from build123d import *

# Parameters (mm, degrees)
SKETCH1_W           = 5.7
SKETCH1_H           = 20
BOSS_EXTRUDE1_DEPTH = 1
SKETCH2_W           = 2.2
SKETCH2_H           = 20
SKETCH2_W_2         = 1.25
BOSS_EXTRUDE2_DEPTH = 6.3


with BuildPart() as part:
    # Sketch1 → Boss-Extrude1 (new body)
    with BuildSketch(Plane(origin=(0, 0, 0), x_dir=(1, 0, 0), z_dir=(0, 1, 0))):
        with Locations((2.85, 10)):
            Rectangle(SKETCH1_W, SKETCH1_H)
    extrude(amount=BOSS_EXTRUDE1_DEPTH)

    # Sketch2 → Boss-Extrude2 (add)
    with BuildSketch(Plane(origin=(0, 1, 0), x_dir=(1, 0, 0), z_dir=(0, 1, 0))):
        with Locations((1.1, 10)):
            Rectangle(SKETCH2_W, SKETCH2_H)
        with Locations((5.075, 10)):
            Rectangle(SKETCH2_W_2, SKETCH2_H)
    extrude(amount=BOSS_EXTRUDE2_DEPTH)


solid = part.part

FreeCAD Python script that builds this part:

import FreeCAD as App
import Part
import Sketcher
from FreeCAD import Vector
Q = App.Units.Quantity


def add_polygon(sketch, points):
    """Adds a closed chain of lines whose ends are joined by coincident constraints."""
    first, n = sketch.GeometryCount, len(points)
    for a, b in zip(points, points[1:] + points[:1]):
        sketch.addGeometry(Part.LineSegment(App.Vector(*a, 0), App.Vector(*b, 0)), False)
    for i in range(n):
        sketch.addConstraint(Sketcher.Constraint("Coincident", first + i, 2, first + (i + 1) % n, 1))

doc = App.newDocument("Part")
params = doc.addObject("Spreadsheet::Sheet", "Params")
for row, (alias, value) in enumerate([
    ("sketch1_height", "20 mm"),
    ("sketch1_width", "5.7 mm"),
    ("pad1_length", "1 mm"),
    ("sketch2_height", "20 mm"),
    ("sketch2_width", "2.2 mm"),
    ("sketch2_width2", "1.25 mm"),
    ("pad2_length", "6.3 mm"),
], start=1):
    params.set(f"A{row}", alias)
    params.set(f"B{row}", "=" + value)
    params.setAlias(f"B{row}", alias)

body = doc.addObject("PartDesign::Body", "Body")

sketch1 = doc.addObject("Sketcher::SketchObject", "Sketch")
body.addObject(sketch1)
sketch1.AttachmentSupport = (doc.XZ_Plane, [""])
sketch1.MapMode = "FlatFace"
add_polygon(sketch1, [(0, -20), (0, 0), (6, 0), (6, -20)])
sketch1.addConstraint([
    Sketcher.Constraint("Vertical", 0),
    Sketcher.Constraint("Horizontal", 1),
    Sketcher.Constraint("Vertical", 2),
    Sketcher.Constraint("Horizontal", 3),
    Sketcher.Constraint("Coincident", 0, 2, -1, 1),
    Sketcher.Constraint("DistanceY", 0, 1, 0, 2, Q("20 mm")),
    Sketcher.Constraint("DistanceX", 1, 1, 1, 2, Q("5.7 mm")),
])
sketch1.setExpression("Constraints[9]", "Params.sketch1_height")
sketch1.setExpression("Constraints[10]", "Params.sketch1_width")
pad1 = doc.addObject("PartDesign::Pad", "Pad")
body.addObject(pad1)
pad1.Profile = sketch1
pad1.setExpression("Length", "Params.pad1_length")
pad1.Reversed = True

sketch2 = doc.addObject("Sketcher::SketchObject", "Sketch001")
body.addObject(sketch2)
sketch2.AttachmentSupport = (doc.XZ_Plane, [""])
sketch2.MapMode = "FlatFace"
sketch2.AttachmentOffset = App.Placement(Vector(0, 0, -1), App.Rotation())
add_polygon(sketch2, [(0, -20), (0, 0), (2.2, 0), (2.2, -20)])
add_polygon(sketch2, [(4.5, -20), (4.5, 0), (5.7, 0), (5.7, -20)])
sketch2.addConstraint([
    Sketcher.Constraint("Vertical", 0),
    Sketcher.Constraint("Horizontal", 1),
    Sketcher.Constraint("Vertical", 2),
    Sketcher.Constraint("Horizontal", 3),
    Sketcher.Constraint("Vertical", 4),
    Sketcher.Constraint("Horizontal", 5),
    Sketcher.Constraint("Vertical", 6),
    Sketcher.Constraint("Horizontal", 7),
    Sketcher.Constraint("Coincident", 0, 2, -1, 1),
    Sketcher.Constraint("PointOnObject", 4, 2, -1),
    Sketcher.Constraint("Horizontal", 3, 2, 6, 2),
    Sketcher.Constraint("DistanceY", 0, 1, 0, 2, Q("20 mm")),
    Sketcher.Constraint("DistanceX", 1, 1, 1, 2, Q("2.2 mm")),
    Sketcher.Constraint("DistanceX", 5, 1, 5, 2, Q("1.25 mm")),
    Sketcher.Constraint("DistanceX", -1, 1, 5, 2, Q("5.7 mm")),
])
sketch2.setExpression("Constraints[19]", "Params.sketch2_height")
sketch2.setExpression("Constraints[20]", "Params.sketch2_width")
sketch2.setExpression("Constraints[21]", "Params.sketch2_width2")
pad2 = doc.addObject("PartDesign::Pad", "Pad001")
body.addObject(pad2)
pad2.Profile = sketch2
pad2.setExpression("Length", "Params.pad2_length")
pad2.Reversed = True

doc.recompute()
